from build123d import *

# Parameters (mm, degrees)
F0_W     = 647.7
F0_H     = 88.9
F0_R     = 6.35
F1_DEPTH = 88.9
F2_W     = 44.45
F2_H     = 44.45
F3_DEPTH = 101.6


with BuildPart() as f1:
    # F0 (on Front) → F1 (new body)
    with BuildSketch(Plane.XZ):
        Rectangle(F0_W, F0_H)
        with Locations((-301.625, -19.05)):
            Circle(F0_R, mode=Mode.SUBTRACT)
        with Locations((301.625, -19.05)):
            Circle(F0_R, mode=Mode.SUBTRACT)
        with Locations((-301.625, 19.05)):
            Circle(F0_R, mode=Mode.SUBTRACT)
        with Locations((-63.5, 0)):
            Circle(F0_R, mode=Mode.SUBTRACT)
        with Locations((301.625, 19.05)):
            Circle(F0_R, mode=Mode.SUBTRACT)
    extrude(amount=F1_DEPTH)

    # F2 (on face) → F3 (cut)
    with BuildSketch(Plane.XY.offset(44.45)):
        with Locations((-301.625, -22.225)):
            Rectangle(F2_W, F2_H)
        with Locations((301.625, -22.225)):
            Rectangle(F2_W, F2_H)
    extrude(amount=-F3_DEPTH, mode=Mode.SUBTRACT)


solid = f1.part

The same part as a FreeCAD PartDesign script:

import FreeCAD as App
import Part
import Sketcher
Q = App.Units.Quantity

doc = App.newDocument("Part")
params = doc.addObject("Spreadsheet::Sheet", "Params")
for row, (alias, value) in enumerate([
    ("sketch1_diameter", "0.5 in"),
    ("sketch1_width", "25.5 in"),
    ("sketch1_height", "3.5 in"),
    ("pad1_length", "3.5 in"),
    ("sketch2_width", "1.75 in"),
    ("pocket1_length", "4 in"),
], start=1):
    params.set(f"A{row}", alias)
    params.set(f"B{row}", "=" + value)
    params.setAlias(f"B{row}", alias)

body = doc.addObject("PartDesign::Body", "Body")

# Sketch on XZ plane
sketch1 = doc.addObject("Sketcher::SketchObject", "Sketch")
body.addObject(sketch1)
sketch1.AttachmentSupport = (doc.XZ_Plane, [""])
sketch1.MapMode = "FlatFace"
sketch1.addGeometry([
    Part.LineSegment(App.Vector(-324, 44, 0), App.Vector(-324, -44, 0)),  # 0
    Part.LineSegment(App.Vector(-324, -44, 0), App.Vector(324, -44, 0)),  # 1
    Part.LineSegment(App.Vector(324, -44, 0), App.Vector(324, 44, 0)),  # 2
    Part.LineSegment(App.Vector(324, 44, 0), App.Vector(-324, 44, 0)),  # 3
    Part.Circle(App.Vector(-302, -19, 0), App.Vector(0, 0, 1), 6),  # 4
    Part.Circle(App.Vector(302, -19, 0), App.Vector(0, 0, 1), 6),  # 5
    Part.Circle(App.Vector(-64, 0, 0), App.Vector(0, 0, 1), 6),  # 6
    Part.Circle(App.Vector(-302, 19, 0), App.Vector(0, 0, 1), 6),  # 7
    Part.Circle(App.Vector(302, 19, 0), App.Vector(0, 0, 1), 6),  # 8
], False)
sketch1.addConstraint([
    Sketcher.Constraint("Coincident", 0, 2, 1, 1),
    Sketcher.Constraint("Coincident", 1, 2, 2, 1),
    Sketcher.Constraint("Coincident", 2, 2, 3, 1),
    Sketcher.Constraint("Coincident", 3, 2, 0, 1),
    Sketcher.Constraint("Vertical", 0),
    Sketcher.Constraint("Horizontal", 1),
    Sketcher.Constraint("Vertical", 2),
    Sketcher.Constraint("Horizontal", 3),
    Sketcher.Constraint("Equal", 4, 5),
    Sketcher.Constraint("Equal", 5, 6),
    Sketcher.Constraint("Equal", 6, 7),
    Sketcher.Constraint("Equal", 7, 8),
    Sketcher.Constraint("Symmetric", 5, 3, 7, 3, -1, 1),
    Sketcher.Constraint("Symmetric", 4, 3, 8, 3, -1, 1),
    Sketcher.Constraint("Symmetric", 0, 2, 2, 2, -1, 1),
    Sketcher.Constraint("Symmetric", 4, 3, 5, 3, -2),
    Sketcher.Constraint("PointOnObject", 6, 3, -1),
    Sketcher.Constraint("Diameter", 4, Q("0.5 in")),
    Sketcher.Constraint("DistanceX", 1, 1, 1, 2, Q("25.5 in")),
    Sketcher.Constraint("DistanceY", 0, 2, 0, 1, Q("3.5 in")),
    Sketcher.Constraint("DistanceY", 0, 2, 4, 3, Q("1 in")),
    Sketcher.Constraint("DistanceX", 6, 3, -1, 1, Q("2.5 in")),
    Sketcher.Constraint("DistanceX", 4, 3, 5, 3, Q("23.75 in")),
])
sketch1.setExpression("Constraints[17]", "Params.sketch1_diameter")
sketch1.setExpression("Constraints[18]", "Params.sketch1_width")
sketch1.setExpression("Constraints[19]", "Params.sketch1_height")
pad1 = doc.addObject("PartDesign::Pad", "Pad")
body.addObject(pad1)
pad1.Profile = sketch1
pad1.setExpression("Length", "Params.pad1_length")

# Sketch on XY plane
sketch2 = doc.addObject("Sketcher::SketchObject", "Sketch001")
body.addObject(sketch2)
sketch2.AttachmentSupport = (doc.XY_Plane, [""])
sketch2.MapMode = "FlatFace"
sketch2.AttachmentOffset = App.Placement(App.Vector(0, 0, 1.75 * 25.4), App.Rotation())
sketch2.addGeometry([
    Part.LineSegment(App.Vector(-324, 0, 0), App.Vector(-324, -44, 0)),  # 0
    Part.LineSegment(App.Vector(-324, -44, 0), App.Vector(-279, -44, 0)),  # 1
    Part.LineSegment(App.Vector(-279, -44, 0), App.Vector(-279, 0, 0)),  # 2
    Part.LineSegment(App.Vector(-279, 0, 0), App.Vector(-324, 0, 0)),  # 3
    Part.LineSegment(App.Vector(279, 0, 0), App.Vector(279, -44, 0)),  # 4
    Part.LineSegment(App.Vector(279, -44, 0), App.Vector(324, -44, 0)),  # 5
    Part.LineSegment(App.Vector(324, -44, 0), App.Vector(324, 0, 0)),  # 6
    Part.LineSegment(App.Vector(324, 0, 0), App.Vector(279, 0, 0)),  # 7
], False)
sketch2.addConstraint([
    Sketcher.Constraint("Coincident", 0, 2, 1, 1),
    Sketcher.Constraint("Coincident", 1, 2, 2, 1),
    Sketcher.Constraint("Coincident", 2, 2, 3, 1),
    Sketcher.Constraint("Coincident", 3, 2, 0, 1),
    Sketcher.Constraint("Coincident", 4, 2, 5, 1),
    Sketcher.Constraint("Coincident", 5, 2, 6, 1),
    Sketcher.Constraint("Coincident", 6, 2, 7, 1),
    Sketcher.Constraint("Coincident", 7, 2, 4, 1),
    Sketcher.Constraint("Vertical", 0),
    Sketcher.Constraint("Horizontal", 1),
    Sketcher.Constraint("Vertical", 2),
    Sketcher.Constraint("Horizontal", 3),
    Sketcher.Constraint("Vertical", 4),
    Sketcher.Constraint("Horizontal", 5),
    Sketcher.Constraint("Vertical", 6),
    Sketcher.Constraint("Horizontal", 7),
    Sketcher.Constraint("Symmetric", 3, 2, 6, 2, -1, 1),
    Sketcher.Constraint("Symmetric", 1, 2, 4, 2, -2),
    Sketcher.Constraint("PointOnObject", 2, 2, -1),
    Sketcher.Constraint("Equal", 7, 0),
    Sketcher.Constraint("DistanceX", 1, 2, -1, 1, Q("11 in")),
    Sketcher.Constraint("DistanceX", 1, 1, 1, 2, Q("1.75 in")),
])
sketch2.setExpression("Constraints[21]", "Params.sketch2_width")
pocket1 = doc.addObject("PartDesign::Pocket", "Pocket")
body.addObject(pocket1)
pocket1.Profile = sketch2
pocket1.setExpression("Length", "Params.pocket1_length")

doc.recompute()
